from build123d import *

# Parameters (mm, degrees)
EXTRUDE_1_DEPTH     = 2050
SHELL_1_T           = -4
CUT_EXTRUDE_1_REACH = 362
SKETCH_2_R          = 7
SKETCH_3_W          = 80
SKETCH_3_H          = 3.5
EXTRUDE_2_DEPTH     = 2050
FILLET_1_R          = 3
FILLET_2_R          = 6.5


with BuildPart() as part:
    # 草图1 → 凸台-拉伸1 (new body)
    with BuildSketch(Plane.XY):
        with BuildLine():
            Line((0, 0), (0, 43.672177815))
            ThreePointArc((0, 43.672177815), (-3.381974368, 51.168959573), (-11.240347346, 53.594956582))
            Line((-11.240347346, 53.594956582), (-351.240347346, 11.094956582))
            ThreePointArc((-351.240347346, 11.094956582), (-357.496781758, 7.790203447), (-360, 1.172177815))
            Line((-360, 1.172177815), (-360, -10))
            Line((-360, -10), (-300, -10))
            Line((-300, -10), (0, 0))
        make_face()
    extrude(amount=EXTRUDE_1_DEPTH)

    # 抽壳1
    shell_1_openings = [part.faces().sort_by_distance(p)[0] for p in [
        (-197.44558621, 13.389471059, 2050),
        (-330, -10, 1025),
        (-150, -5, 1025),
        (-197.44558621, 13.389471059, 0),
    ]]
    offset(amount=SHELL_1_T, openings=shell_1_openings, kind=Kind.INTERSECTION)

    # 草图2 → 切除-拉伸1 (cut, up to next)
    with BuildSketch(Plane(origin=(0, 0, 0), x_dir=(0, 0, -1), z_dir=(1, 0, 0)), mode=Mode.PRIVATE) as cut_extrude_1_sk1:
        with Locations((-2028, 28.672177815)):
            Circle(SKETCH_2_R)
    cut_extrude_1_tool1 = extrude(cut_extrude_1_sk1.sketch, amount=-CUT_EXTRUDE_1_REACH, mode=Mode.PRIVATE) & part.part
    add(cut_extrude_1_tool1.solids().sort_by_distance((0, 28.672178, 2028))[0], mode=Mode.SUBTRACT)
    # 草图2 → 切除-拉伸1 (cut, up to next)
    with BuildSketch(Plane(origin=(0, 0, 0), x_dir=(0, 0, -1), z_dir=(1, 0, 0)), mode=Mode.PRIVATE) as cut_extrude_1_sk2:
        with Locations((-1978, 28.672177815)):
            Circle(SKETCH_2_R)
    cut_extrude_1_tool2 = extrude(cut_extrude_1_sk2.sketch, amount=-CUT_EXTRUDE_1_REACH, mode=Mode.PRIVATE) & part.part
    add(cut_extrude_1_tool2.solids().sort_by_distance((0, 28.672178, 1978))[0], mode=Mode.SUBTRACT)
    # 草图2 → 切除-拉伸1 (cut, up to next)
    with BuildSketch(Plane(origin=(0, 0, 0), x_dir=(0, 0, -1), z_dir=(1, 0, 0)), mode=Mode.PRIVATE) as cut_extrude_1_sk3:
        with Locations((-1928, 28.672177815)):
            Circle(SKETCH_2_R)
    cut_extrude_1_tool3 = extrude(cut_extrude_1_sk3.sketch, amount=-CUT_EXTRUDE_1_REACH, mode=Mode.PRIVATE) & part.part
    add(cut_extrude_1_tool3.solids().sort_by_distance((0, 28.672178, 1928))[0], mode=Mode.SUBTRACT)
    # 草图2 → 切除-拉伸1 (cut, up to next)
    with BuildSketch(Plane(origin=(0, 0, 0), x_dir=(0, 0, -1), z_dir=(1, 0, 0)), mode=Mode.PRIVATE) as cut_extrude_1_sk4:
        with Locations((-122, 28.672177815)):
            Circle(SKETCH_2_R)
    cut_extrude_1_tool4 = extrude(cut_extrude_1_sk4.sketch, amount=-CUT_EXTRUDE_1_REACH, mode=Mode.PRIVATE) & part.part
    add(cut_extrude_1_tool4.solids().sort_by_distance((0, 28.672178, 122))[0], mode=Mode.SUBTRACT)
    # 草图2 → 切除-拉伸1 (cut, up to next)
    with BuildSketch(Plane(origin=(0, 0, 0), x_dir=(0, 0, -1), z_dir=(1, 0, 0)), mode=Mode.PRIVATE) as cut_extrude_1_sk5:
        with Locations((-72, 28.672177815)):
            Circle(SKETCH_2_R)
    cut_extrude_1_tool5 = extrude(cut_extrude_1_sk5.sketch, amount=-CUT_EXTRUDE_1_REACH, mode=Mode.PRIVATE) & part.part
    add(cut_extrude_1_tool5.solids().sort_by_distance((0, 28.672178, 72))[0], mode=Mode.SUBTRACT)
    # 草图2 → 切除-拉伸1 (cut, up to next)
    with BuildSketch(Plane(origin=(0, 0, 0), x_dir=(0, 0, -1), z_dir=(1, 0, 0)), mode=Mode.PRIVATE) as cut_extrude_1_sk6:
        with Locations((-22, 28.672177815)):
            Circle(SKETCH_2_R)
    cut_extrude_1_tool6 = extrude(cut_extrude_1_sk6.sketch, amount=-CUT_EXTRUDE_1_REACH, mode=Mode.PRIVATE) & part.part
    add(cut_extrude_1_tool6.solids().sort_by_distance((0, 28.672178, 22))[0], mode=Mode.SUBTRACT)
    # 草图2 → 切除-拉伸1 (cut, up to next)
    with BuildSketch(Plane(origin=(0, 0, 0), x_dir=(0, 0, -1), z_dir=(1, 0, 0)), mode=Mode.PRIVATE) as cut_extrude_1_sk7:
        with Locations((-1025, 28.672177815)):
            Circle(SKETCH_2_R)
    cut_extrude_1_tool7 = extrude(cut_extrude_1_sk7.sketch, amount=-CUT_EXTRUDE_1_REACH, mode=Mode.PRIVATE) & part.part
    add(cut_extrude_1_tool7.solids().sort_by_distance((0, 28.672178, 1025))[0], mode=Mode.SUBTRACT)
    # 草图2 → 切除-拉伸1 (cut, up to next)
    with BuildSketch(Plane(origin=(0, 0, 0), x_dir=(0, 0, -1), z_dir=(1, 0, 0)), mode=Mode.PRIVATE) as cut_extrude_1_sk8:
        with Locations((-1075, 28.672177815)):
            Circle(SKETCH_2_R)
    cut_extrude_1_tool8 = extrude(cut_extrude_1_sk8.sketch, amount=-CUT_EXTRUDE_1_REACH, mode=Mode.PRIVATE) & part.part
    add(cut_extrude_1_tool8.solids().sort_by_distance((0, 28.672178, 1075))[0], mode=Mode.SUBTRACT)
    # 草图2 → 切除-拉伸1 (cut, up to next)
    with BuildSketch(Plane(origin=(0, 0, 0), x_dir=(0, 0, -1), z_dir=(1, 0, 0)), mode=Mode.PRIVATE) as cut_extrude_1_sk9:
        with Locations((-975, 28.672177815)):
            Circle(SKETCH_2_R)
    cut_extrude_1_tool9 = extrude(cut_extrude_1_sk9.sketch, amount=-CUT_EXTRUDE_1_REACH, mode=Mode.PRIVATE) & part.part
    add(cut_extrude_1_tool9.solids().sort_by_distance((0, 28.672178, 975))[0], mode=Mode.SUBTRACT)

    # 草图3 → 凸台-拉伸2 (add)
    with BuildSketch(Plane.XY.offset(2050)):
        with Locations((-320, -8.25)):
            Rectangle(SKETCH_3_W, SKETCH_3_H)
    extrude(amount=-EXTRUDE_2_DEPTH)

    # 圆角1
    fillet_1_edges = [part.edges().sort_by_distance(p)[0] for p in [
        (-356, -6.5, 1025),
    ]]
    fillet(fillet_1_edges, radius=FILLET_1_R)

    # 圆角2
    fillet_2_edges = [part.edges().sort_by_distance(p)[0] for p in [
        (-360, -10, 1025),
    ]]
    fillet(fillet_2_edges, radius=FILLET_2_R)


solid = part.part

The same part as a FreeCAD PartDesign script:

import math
import FreeCAD as App
import Part
import Sketcher

V = App.Vector
Q = App.Units.Quantity


def edges_at(feature, points):
    """Names of the edges that pass closest to the given points."""
    edges = feature.Shape.Edges
    near = lambda p: min(range(len(edges)), key=lambda i: edges[i].distToShape(Part.Vertex(*p))[0])
    return sorted({f"Edge{near(p) + 1}" for p in points})


def faces_at(feature, points):
    """Names of the faces that lie closest to the given points."""
    faces = feature.Shape.Faces
    near = lambda p: min(range(len(faces)), key=lambda i: faces[i].distToShape(Part.Vertex(*p))[0])
    return sorted({f"Face{near(p) + 1}" for p in points})

doc = App.newDocument("Part")
body = doc.addObject("PartDesign::Body", "Body")

sketch1 = body.newObject("Sketcher::SketchObject", "Sketch")
sketch1.AttachmentSupport = (doc.getObject("XY_Plane"), [""])
sketch1.MapMode = "FlatFace"
sketch1.addGeometry(Part.LineSegment(V(0, 0, 0), V(0, 44, 0)), False)
sketch1.addGeometry(Part.ArcOfCircle(Part.Circle(V(-10, 44, 0), V(0, 0, 1), 10), math.radians(0), math.radians(97)), False)
sketch1.addGeometry(Part.LineSegment(V(-11, 54, 0), V(-351, 11, 0)), False)
sketch1.addGeometry(Part.ArcOfCircle(Part.Circle(V(-350, 1, 0), V(0, 0, 1), 10), math.radians(97), math.radians(180)), False)
sketch1.addGeometry(Part.LineSegment(V(-360, 1, 0), V(-360, -10, 0)), False)
sketch1.addGeometry(Part.LineSegment(V(-360, -10, 0), V(-300, -10, 0)), False)
sketch1.addGeometry(Part.LineSegment(V(-300, -10, 0), V(0, 0, 0)), False)
sketch1.addConstraint(Sketcher.Constraint("Tangent", 0, 2, 1, 1))
sketch1.addConstraint(Sketcher.Constraint("Tangent", 1, 2, 2, 1))
sketch1.addConstraint(Sketcher.Constraint("Tangent", 2, 2, 3, 1))
sketch1.addConstraint(Sketcher.Constraint("Tangent", 3, 2, 4, 1))
sketch1.addConstraint(Sketcher.Constraint("Coincident", 4, 2, 5, 1))
sketch1.addConstraint(Sketcher.Constraint("Coincident", 5, 2, 6, 1))
sketch1.addConstraint(Sketcher.Constraint("Coincident", 6, 2, 0, 1))
sketch1.addConstraint(Sketcher.Constraint("Vertical", 0))
sketch1.addConstraint(Sketcher.Constraint("Vertical", 4))
sketch1.addConstraint(Sketcher.Constraint("Horizontal", 5))
sketch1.addConstraint(Sketcher.Constraint("Coincident", 6, 2, -1, 1))
sketch1.addConstraint(Sketcher.Constraint("Equal", 1, 3))
sketch1.addConstraint(Sketcher.Constraint("Radius", 1, Q("10 mm")))
sketch1.addConstraint(Sketcher.Constraint("DistanceX", 5, 1, 5, 2, Q("60 mm")))
sketch1.addConstraint(Sketcher.Constraint("DistanceX", 3, 3, -1, 1, Q("350 mm")))
sketch1.addConstraint(Sketcher.Constraint("DistanceY", 4, 2, -1, 1, Q("10 mm")))
sketch1.addConstraint(Sketcher.Constraint("DistanceY", 3, 3, 1, 3, Q("42.5 mm")))
sketch1.addConstraint(Sketcher.Constraint("DistanceY", 0, 1, 0, 2, Q("43.672178 mm")))
pad1 = body.newObject("PartDesign::Pad", "Pad")
pad1.Profile = sketch1
pad1.Length = 2050
doc.recompute()

thickness = body.newObject("PartDesign::Thickness", "Thickness")
thickness.Base = (pad1, faces_at(pad1, [
    (-180, 21.836, 2050),
    (-330, -10, 1025),
    (-150, -5, 1025),
    (-180, 21.836, 0),
]))
thickness.Value = 4
thickness.Reversed = True
thickness.Join = "Intersection"

sketch2 = body.newObject("Sketcher::SketchObject", "Sketch001")
sketch2.AttachmentSupport = (doc.getObject("YZ_Plane"), [""])
sketch2.MapMode = "FlatFace"
sketch2.addGeometry(Part.Circle(V(29, 2028, 0), V(0, 0, 1), 7), False)
sketch2.addConstraint(Sketcher.Constraint("Diameter", 0, Q("14 mm")))
sketch2.addConstraint(Sketcher.Constraint("DistanceY", -1, 1, 0, 3, Q("2028 mm")))
sketch2.addConstraint(Sketcher.Constraint("DistanceX", -1, 1, 0, 3, Q("28.672178 mm")))
pocket1 = body.newObject("PartDesign::Pocket", "Pocket")
pocket1.Profile = sketch2
pocket1.Type = "UpToFirst"

sketch3 = body.newObject("Sketcher::SketchObject", "Sketch002")
sketch3.AttachmentSupport = (doc.getObject("YZ_Plane"), [""])
sketch3.MapMode = "FlatFace"
sketch3.addGeometry(Part.Circle(V(29, 1978, 0), V(0, 0, 1), 7), False)
sketch3.addConstraint(Sketcher.Constraint("Diameter", 0, Q("14 mm")))
sketch3.addConstraint(Sketcher.Constraint("DistanceY", -1, 1, 0, 3, Q("1978 mm")))
sketch3.addConstraint(Sketcher.Constraint("DistanceX", -1, 1, 0, 3, Q("28.672178 mm")))
pocket2 = body.newObject("PartDesign::Pocket", "Pocket001")
pocket2.Profile = sketch3
pocket2.Type = "UpToFirst"

sketch4 = body.newObject("Sketcher::SketchObject", "Sketch003")
sketch4.AttachmentSupport = (doc.getObject("YZ_Plane"), [""])
sketch4.MapMode = "FlatFace"
sketch4.addGeometry(Part.Circle(V(29, 1928, 0), V(0, 0, 1), 7), False)
sketch4.addConstraint(Sketcher.Constraint("Diameter", 0, Q("14 mm")))
sketch4.addConstraint(Sketcher.Constraint("DistanceY", -1, 1, 0, 3, Q("1928 mm")))
sketch4.addConstraint(Sketcher.Constraint("DistanceX", -1, 1, 0, 3, Q("28.672178 mm")))
pocket3 = body.newObject("PartDesign::Pocket", "Pocket002")
pocket3.Profile = sketch4
pocket3.Type = "UpToFirst"

sketch5 = body.newObject("Sketcher::SketchObject", "Sketch004")
sketch5.AttachmentSupport = (doc.getObject("YZ_Plane"), [""])
sketch5.MapMode = "FlatFace"
sketch5.addGeometry(Part.Circle(V(29, 122, 0), V(0, 0, 1), 7), False)
sketch5.addConstraint(Sketcher.Constraint("Diameter", 0, Q("14 mm")))
sketch5.addConstraint(Sketcher.Constraint("DistanceY", -1, 1, 0, 3, Q("122 mm")))
sketch5.addConstraint(Sketcher.Constraint("DistanceX", -1, 1, 0, 3, Q("28.672178 mm")))
pocket4 = body.newObject("PartDesign::Pocket", "Pocket003")
pocket4.Profile = sketch5
pocket4.Type = "UpToFirst"

sketch6 = body.newObject("Sketcher::SketchObject", "Sketch005")
sketch6.AttachmentSupport = (doc.getObject("YZ_Plane"), [""])
sketch6.MapMode = "FlatFace"
sketch6.addGeometry(Part.Circle(V(29, 72, 0), V(0, 0, 1), 7), False)
sketch6.addConstraint(Sketcher.Constraint("Diameter", 0, Q("14 mm")))
sketch6.addConstraint(Sketcher.Constraint("DistanceY", -1, 1, 0, 3, Q("72 mm")))
sketch6.addConstraint(Sketcher.Constraint("DistanceX", -1, 1, 0, 3, Q("28.672178 mm")))
pocket5 = body.newObject("PartDesign::Pocket", "Pocket004")
pocket5.Profile = sketch6
pocket5.Type = "UpToFirst"

sketch7 = body.newObject("Sketcher::SketchObject", "Sketch006")
sketch7.AttachmentSupport = (doc.getObject("YZ_Plane"), [""])
sketch7.MapMode = "FlatFace"
sketch7.addGeometry(Part.Circle(V(29, 22, 0), V(0, 0, 1), 7), False)
sketch7.addConstraint(Sketcher.Constraint("Diameter", 0, Q("14 mm")))
sketch7.addConstraint(Sketcher.Constraint("DistanceY", -1, 1, 0, 3, Q("22 mm")))
sketch7.addConstraint(Sketcher.Constraint("DistanceX", -1, 1, 0, 3, Q("28.672178 mm")))
pocket6 = body.newObject("PartDesign::Pocket", "Pocket005")
pocket6.Profile = sketch7
pocket6.Type = "UpToFirst"

sketch8 = body.newObject("Sketcher::SketchObject", "Sketch007")
sketch8.AttachmentSupport = (doc.getObject("YZ_Plane"), [""])
sketch8.MapMode = "FlatFace"
sketch8.addGeometry(Part.Circle(V(29, 1025, 0), V(0, 0, 1), 7), False)
sketch8.addConstraint(Sketcher.Constraint("Diameter", 0, Q("14 mm")))
sketch8.addConstraint(Sketcher.Constraint("DistanceY", -1, 1, 0, 3, Q("1025 mm")))
sketch8.addConstraint(Sketcher.Constraint("DistanceX", -1, 1, 0, 3, Q("28.672178 mm")))
pocket7 = body.newObject("PartDesign::Pocket", "Pocket006")
pocket7.Profile = sketch8
pocket7.Type = "UpToFirst"

sketch9 = body.newObject("Sketcher::SketchObject", "Sketch008")
sketch9.AttachmentSupport = (doc.getObject("YZ_Plane"), [""])
sketch9.MapMode = "FlatFace"
sketch9.addGeometry(Part.Circle(V(29, 1075, 0), V(0, 0, 1), 7), False)
sketch9.addConstraint(Sketcher.Constraint("Diameter", 0, Q("14 mm")))
sketch9.addConstraint(Sketcher.Constraint("DistanceY", -1, 1, 0, 3, Q("1075 mm")))
sketch9.addConstraint(Sketcher.Constraint("DistanceX", -1, 1, 0, 3, Q("28.672178 mm")))
pocket8 = body.newObject("PartDesign::Pocket", "Pocket007")
pocket8.Profile = sketch9
pocket8.Type = "UpToFirst"

sketch10 = body.newObject("Sketcher::SketchObject", "Sketch009")
sketch10.AttachmentSupport = (doc.getObject("YZ_Plane"), [""])
sketch10.MapMode = "FlatFace"
sketch10.addGeometry(Part.Circle(V(29, 975, 0), V(0, 0, 1), 7), False)
sketch10.addConstraint(Sketcher.Constraint("Diameter", 0, Q("14 mm")))
sketch10.addConstraint(Sketcher.Constraint("DistanceY", -1, 1, 0, 3, Q("975 mm")))
sketch10.addConstraint(Sketcher.Constraint("DistanceX", -1, 1, 0, 3, Q("28.672178 mm")))
pocket9 = body.newObject("PartDesign::Pocket", "Pocket008")
pocket9.Profile = sketch10
pocket9.Type = "UpToFirst"

sketch11 = body.newObject("Sketcher::SketchObject", "Sketch010")
sketch11.AttachmentSupport = (doc.getObject("XY_Plane"), [""])
sketch11.MapMode = "FlatFace"
sketch11.AttachmentOffset = App.Placement(V(0, 0, 2050), App.Rotation())
sketch11.addGeometry(Part.LineSegment(V(-360, -6.5, 0), V(-360, -10, 0)), False)
sketch11.addGeometry(Part.LineSegment(V(-360, -10, 0), V(-280, -10, 0)), False)
sketch11.addGeometry(Part.LineSegment(V(-280, -10, 0), V(-280, -6.5, 0)), False)
sketch11.addGeometry(Part.LineSegment(V(-280, -6.5, 0), V(-360, -6.5, 0)), False)
sketch11.addConstraint(Sketcher.Constraint("Coincident", 0, 2, 1, 1))
sketch11.addConstraint(Sketcher.Constraint("Coincident", 1, 2, 2, 1))
sketch11.addConstraint(Sketcher.Constraint("Coincident", 2, 2, 3, 1))
sketch11.addConstraint(Sketcher.Constraint("Coincident", 3, 2, 0, 1))
sketch11.addConstraint(Sketcher.Constraint("Vertical", 0))
sketch11.addConstraint(Sketcher.Constraint("Horizontal", 1))
sketch11.addConstraint(Sketcher.Constraint("Vertical", 2))
sketch11.addConstraint(Sketcher.Constraint("Horizontal", 3))
sketch11.addConstraint(Sketcher.Constraint("DistanceX", 1, 1, 1, 2, Q("80 mm")))
sketch11.addConstraint(Sketcher.Constraint("DistanceY", 0, 2, 0, 1, Q("3.5 mm")))
sketch11.addConstraint(Sketcher.Constraint("DistanceX", 0, 2, -1, 1, Q("360 mm")))
sketch11.addConstraint(Sketcher.Constraint("DistanceY", 0, 2, -1, 1, Q("10 mm")))
pad2 = body.newObject("PartDesign::Pad", "Pad001")
pad2.Profile = sketch11
pad2.Length = 2050
pad2.Reversed = True
doc.recompute()

fillet = body.newObject("PartDesign::Fillet", "Fillet")
fillet.Base = (pad2, edges_at(pad2, [(-356, -6.5, 1025)]))
fillet.Radius = 3
doc.recompute()

fillet2 = body.newObject("PartDesign::Fillet", "Fillet001")
fillet2.Base = (fillet, edges_at(fillet, [(-360, -10, 1025)]))
fillet2.Radius = 6.5

doc.recompute()
